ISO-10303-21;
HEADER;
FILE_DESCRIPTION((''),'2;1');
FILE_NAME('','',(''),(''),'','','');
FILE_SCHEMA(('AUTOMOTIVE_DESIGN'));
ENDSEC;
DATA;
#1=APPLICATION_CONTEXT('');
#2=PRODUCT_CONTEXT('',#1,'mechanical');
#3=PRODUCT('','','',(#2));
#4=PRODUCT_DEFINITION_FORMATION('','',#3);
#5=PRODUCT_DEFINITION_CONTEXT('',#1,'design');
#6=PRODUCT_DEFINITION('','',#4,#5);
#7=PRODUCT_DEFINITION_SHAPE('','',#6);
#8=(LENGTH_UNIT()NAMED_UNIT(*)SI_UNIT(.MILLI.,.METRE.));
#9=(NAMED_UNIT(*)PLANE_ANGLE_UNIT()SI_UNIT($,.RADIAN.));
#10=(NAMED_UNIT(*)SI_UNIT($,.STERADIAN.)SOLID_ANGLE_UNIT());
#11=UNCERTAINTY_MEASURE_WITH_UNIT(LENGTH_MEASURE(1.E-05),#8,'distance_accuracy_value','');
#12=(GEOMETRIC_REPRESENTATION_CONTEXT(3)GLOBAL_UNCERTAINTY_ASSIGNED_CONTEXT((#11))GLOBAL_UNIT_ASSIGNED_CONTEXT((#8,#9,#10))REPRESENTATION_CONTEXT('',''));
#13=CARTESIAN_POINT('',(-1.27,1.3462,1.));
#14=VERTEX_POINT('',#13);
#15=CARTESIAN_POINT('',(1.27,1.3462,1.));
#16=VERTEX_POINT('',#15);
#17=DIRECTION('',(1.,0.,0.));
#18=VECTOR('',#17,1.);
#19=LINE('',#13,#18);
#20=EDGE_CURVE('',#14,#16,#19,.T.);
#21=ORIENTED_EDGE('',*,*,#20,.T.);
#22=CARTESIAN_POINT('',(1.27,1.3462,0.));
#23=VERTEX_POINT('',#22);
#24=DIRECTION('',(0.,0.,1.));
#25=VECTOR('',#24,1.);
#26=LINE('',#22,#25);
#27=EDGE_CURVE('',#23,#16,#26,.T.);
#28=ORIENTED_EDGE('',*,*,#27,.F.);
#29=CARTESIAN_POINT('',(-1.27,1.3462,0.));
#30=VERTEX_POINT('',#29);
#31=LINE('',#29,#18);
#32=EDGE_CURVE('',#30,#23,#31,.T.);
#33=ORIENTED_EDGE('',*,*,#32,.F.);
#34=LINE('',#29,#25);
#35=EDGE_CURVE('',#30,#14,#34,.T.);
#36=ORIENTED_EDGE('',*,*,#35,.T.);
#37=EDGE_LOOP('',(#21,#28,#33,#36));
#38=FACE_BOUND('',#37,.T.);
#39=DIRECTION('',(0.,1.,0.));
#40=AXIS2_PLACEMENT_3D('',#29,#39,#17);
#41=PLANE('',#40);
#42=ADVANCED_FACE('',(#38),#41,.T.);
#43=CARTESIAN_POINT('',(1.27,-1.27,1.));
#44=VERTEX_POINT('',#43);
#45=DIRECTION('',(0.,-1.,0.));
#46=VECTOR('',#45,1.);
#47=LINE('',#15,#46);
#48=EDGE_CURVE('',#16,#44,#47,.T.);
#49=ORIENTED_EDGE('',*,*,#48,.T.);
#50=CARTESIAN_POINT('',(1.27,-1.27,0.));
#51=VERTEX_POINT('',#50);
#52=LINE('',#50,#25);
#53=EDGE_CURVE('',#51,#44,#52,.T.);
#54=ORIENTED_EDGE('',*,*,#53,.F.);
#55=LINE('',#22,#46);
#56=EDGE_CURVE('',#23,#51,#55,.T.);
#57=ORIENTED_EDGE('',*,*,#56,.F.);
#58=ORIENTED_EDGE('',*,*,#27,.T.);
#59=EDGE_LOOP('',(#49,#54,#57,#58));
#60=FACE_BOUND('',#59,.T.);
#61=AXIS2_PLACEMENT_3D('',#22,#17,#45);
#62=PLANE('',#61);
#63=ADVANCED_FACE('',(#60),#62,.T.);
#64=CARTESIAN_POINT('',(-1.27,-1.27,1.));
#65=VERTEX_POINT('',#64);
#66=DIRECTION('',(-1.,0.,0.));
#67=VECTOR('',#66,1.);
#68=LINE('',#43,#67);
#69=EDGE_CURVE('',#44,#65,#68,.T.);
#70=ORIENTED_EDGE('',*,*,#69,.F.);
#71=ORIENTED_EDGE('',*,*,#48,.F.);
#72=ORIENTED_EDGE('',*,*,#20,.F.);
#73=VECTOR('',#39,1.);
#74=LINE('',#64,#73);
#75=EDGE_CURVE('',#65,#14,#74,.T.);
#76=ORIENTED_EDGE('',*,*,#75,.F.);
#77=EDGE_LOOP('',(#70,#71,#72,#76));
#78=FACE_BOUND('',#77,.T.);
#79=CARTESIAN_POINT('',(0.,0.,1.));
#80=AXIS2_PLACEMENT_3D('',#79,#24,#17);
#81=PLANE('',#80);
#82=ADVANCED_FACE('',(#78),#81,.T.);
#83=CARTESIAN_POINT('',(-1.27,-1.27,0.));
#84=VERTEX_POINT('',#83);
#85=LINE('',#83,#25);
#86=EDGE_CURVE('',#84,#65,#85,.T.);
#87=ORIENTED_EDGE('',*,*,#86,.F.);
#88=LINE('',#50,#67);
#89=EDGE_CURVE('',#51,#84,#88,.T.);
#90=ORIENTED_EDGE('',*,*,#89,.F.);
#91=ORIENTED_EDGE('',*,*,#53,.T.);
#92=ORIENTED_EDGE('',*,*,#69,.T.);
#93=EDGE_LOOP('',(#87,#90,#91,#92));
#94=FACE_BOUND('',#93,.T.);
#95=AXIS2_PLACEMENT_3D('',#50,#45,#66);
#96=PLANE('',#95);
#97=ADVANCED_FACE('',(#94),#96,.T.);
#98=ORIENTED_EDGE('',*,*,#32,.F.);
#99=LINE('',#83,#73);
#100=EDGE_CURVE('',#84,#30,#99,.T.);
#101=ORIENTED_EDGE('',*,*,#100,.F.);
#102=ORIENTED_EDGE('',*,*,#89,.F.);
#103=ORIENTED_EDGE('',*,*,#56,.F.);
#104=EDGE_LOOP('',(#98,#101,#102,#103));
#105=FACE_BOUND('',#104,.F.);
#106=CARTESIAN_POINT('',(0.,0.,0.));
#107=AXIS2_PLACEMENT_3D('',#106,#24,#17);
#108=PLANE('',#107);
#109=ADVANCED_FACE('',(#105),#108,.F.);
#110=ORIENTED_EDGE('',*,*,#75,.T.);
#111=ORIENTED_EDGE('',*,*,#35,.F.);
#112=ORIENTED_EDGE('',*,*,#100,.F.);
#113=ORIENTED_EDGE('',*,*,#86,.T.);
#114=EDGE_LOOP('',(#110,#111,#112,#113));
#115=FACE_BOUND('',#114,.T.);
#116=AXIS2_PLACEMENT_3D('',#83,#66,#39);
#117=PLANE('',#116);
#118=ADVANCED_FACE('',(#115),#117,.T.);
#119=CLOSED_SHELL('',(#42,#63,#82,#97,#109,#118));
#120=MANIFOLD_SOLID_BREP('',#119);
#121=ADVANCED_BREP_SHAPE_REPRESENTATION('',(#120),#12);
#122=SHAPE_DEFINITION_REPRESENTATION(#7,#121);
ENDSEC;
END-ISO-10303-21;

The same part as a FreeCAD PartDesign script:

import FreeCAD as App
import Part
import Sketcher

V = App.Vector
Q = App.Units.Quantity


def add_polygon(sketch, points):
    """Adds a closed chain of lines whose ends are joined by coincident constraints."""
    first, n = sketch.GeometryCount, len(points)
    for a, b in zip(points, points[1:] + points[:1]):
        sketch.addGeometry(Part.LineSegment(App.Vector(*a, 0), App.Vector(*b, 0)), False)
    for i in range(n):
        sketch.addConstraint(Sketcher.Constraint("Coincident", first + i, 2, first + (i + 1) % n, 1))

doc = App.newDocument("Part")
body = doc.addObject("PartDesign::Body", "Body")

# Sketch on XY plane
sketch1 = body.newObject("Sketcher::SketchObject", "Sketch")
sketch1.AttachmentSupport = (doc.getObject("XY_Plane"), [""])
sketch1.MapMode = "FlatFace"
add_polygon(sketch1, [(1.3, 1.3), (-1.3, 1.3), (-1.3, -1.3), (1.3, -1.3)])  # lines 0-3
sketch1.addConstraint([
    Sketcher.Constraint("Horizontal", 0),
    Sketcher.Constraint("Vertical", 1),
    Sketcher.Constraint("Horizontal", 2),
    Sketcher.Constraint("Vertical", 3),
    Sketcher.Constraint("DistanceX", 0, 2, 0, 1, Q("0.1 in")),
    Sketcher.Constraint("DistanceY", 1, 2, 1, 1, Q("0.103 in")),
    Sketcher.Constraint("DistanceX", 0, 2, -1, 1, Q("0.05 in")),
    Sketcher.Constraint("DistanceY", 1, 2, -1, 1, Q("0.05 in")),
])
pad1 = body.newObject("PartDesign::Pad", "Pad")
pad1.Profile = sketch1
pad1.Length = 1

doc.recompute()
